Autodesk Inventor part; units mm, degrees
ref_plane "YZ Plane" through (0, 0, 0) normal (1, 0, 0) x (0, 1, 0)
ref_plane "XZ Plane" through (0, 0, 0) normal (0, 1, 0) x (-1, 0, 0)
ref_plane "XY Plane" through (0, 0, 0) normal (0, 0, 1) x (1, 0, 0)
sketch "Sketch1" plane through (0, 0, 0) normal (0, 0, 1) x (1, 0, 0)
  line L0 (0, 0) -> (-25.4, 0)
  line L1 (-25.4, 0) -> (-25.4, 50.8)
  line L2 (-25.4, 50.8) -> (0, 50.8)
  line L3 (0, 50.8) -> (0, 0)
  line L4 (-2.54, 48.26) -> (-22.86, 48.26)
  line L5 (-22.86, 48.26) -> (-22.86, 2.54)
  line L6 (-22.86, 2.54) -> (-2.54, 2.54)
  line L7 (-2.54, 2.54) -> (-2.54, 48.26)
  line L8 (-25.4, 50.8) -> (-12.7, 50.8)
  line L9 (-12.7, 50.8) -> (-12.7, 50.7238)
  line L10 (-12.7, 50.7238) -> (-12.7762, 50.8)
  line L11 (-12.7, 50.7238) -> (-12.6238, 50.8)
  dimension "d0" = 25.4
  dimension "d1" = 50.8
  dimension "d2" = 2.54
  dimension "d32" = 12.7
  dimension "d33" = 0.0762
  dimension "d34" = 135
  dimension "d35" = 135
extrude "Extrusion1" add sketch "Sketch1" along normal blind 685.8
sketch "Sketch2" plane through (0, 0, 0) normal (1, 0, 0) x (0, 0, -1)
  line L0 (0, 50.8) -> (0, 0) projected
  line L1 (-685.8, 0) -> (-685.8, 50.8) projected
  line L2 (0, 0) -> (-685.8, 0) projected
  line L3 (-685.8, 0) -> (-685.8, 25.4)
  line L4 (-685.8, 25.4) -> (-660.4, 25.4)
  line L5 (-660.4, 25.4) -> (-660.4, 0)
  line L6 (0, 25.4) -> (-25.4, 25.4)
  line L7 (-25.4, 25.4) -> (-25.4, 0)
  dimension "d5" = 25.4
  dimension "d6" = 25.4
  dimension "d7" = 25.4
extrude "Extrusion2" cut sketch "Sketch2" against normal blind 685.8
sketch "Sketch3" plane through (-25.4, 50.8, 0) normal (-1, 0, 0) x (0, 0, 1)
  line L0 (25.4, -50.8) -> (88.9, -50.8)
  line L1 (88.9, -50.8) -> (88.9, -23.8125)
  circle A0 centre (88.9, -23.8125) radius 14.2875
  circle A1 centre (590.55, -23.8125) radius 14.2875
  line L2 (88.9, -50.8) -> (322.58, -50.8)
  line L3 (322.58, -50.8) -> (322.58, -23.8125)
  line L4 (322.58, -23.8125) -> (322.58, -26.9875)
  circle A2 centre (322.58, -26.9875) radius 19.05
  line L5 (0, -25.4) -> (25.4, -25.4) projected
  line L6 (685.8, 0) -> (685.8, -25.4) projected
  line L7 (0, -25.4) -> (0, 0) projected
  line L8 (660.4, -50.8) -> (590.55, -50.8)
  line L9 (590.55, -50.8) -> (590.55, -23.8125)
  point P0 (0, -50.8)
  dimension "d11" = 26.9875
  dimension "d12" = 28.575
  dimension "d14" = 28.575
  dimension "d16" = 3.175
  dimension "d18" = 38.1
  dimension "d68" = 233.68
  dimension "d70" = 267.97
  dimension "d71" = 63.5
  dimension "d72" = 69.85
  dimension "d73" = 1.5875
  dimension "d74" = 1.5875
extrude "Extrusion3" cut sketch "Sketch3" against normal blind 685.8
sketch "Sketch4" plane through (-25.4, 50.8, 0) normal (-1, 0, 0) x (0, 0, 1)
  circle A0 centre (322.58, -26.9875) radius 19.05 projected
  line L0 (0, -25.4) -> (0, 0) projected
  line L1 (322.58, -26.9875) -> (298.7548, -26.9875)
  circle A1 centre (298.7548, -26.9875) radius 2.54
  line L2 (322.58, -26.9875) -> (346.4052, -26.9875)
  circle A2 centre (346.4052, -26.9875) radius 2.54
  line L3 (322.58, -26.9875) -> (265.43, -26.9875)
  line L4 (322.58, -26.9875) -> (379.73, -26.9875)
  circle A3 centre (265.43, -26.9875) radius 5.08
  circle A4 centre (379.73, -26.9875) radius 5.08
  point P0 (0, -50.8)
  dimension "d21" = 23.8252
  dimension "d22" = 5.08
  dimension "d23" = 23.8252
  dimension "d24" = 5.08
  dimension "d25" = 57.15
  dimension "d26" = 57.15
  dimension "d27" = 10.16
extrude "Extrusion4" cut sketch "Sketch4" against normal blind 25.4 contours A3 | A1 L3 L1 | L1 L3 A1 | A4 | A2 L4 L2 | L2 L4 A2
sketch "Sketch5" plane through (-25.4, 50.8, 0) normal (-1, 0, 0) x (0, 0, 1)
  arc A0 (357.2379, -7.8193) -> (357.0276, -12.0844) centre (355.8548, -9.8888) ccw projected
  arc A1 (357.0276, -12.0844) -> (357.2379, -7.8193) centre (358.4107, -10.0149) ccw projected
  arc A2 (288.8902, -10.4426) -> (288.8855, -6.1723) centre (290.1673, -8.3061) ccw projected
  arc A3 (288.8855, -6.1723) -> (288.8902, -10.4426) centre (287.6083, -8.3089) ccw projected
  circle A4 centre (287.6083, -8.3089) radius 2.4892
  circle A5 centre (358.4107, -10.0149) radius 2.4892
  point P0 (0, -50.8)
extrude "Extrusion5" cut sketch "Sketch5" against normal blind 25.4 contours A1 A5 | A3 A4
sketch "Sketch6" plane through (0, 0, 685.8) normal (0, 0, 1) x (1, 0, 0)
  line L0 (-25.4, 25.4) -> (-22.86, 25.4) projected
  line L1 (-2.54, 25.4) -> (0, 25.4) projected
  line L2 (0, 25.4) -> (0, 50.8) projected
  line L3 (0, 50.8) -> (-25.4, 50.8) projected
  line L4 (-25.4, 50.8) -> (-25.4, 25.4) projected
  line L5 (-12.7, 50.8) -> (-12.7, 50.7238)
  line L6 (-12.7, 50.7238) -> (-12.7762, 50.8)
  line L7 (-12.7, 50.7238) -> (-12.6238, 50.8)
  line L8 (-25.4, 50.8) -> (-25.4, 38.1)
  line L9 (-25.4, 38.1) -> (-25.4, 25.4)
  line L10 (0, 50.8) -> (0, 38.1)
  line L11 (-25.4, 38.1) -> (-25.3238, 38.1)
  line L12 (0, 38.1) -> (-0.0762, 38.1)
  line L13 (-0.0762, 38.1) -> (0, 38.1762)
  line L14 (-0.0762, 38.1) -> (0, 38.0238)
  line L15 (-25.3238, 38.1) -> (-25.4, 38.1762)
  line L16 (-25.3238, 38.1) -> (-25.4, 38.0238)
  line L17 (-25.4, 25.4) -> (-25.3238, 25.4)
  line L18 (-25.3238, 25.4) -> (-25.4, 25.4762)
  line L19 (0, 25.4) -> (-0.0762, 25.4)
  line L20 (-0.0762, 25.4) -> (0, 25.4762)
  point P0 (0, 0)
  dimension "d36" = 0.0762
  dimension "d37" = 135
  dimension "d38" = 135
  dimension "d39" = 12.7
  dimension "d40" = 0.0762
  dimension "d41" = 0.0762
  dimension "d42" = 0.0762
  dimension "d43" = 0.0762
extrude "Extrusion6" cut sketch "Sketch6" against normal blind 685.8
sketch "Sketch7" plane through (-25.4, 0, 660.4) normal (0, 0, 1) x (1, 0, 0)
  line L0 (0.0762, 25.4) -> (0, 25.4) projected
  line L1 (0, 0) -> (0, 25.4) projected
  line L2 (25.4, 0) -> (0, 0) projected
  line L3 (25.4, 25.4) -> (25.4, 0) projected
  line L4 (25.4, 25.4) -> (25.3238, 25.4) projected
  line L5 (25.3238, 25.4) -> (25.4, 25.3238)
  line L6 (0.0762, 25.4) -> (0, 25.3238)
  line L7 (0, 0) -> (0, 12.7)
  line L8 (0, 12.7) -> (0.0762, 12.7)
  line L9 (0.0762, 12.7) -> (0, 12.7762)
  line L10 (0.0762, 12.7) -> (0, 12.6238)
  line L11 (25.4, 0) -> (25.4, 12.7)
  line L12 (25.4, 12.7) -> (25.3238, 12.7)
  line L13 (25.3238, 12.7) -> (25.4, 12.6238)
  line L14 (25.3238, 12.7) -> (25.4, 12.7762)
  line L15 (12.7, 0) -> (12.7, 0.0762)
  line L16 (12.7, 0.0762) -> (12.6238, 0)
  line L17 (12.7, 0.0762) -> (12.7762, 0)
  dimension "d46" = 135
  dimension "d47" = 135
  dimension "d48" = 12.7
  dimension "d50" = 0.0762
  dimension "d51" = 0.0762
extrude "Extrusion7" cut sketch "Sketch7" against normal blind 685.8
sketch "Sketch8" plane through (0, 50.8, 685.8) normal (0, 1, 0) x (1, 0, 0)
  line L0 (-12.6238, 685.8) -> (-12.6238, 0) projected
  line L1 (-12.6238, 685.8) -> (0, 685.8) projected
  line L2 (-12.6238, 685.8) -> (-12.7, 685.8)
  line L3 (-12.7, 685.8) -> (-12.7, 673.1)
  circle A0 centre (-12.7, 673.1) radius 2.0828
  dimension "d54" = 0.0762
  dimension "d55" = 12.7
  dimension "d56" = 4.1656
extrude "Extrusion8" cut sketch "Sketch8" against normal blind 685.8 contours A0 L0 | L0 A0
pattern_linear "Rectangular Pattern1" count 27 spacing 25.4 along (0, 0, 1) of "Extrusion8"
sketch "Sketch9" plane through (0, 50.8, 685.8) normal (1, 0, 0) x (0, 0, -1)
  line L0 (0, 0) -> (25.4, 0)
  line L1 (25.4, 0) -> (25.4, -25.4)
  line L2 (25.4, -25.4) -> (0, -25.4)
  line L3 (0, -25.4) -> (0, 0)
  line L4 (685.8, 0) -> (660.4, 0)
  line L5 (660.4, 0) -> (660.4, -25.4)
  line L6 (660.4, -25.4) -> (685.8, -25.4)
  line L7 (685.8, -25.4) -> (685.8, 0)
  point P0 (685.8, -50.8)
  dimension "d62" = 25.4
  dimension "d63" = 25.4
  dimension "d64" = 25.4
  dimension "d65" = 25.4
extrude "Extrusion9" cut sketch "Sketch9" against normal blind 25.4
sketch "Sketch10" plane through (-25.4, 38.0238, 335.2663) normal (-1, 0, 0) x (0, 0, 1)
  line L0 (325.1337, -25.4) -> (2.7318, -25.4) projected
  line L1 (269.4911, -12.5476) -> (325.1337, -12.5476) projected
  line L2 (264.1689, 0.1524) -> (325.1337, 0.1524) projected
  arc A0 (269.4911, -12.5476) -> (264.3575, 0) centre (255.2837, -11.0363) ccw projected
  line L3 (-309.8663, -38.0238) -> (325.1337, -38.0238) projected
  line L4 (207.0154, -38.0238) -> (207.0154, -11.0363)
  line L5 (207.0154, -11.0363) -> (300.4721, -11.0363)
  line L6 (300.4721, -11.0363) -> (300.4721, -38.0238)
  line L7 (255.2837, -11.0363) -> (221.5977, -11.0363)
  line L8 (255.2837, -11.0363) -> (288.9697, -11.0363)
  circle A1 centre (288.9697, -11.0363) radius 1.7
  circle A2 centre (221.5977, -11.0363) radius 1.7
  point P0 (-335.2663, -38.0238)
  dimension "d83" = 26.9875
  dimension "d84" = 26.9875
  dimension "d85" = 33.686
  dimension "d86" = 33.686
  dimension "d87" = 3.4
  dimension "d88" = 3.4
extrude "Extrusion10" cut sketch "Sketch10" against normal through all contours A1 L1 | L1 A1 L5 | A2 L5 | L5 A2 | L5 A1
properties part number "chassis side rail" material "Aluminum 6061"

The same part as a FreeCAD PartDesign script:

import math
import FreeCAD as App
import Part
import Sketcher

V = App.Vector
Q = App.Units.Quantity


def add_polygon(sketch, points):
    """Adds a closed chain of lines whose ends are joined by coincident constraints."""
    first, n = sketch.GeometryCount, len(points)
    for a, b in zip(points, points[1:] + points[:1]):
        sketch.addGeometry(Part.LineSegment(App.Vector(*a, 0), App.Vector(*b, 0)), False)
    for i in range(n):
        sketch.addConstraint(Sketcher.Constraint("Coincident", first + i, 2, first + (i + 1) % n, 1))

doc = App.newDocument("Part")
body = doc.addObject("PartDesign::Body", "Body")

sketch1 = body.newObject("Sketcher::SketchObject", "Sketch")
sketch1.AttachmentSupport = (doc.getObject("XY_Plane"), [""])
sketch1.MapMode = "FlatFace"
add_polygon(sketch1, [(-25, 0), (0, 0), (0, 51), (-25, 51)])
add_polygon(sketch1, [(-23, 48), (-3, 48), (-3, 3), (-23, 3)])
sketch1.addConstraint(Sketcher.Constraint("Horizontal", 0))
sketch1.addConstraint(Sketcher.Constraint("Vertical", 1))
sketch1.addConstraint(Sketcher.Constraint("Horizontal", 2))
sketch1.addConstraint(Sketcher.Constraint("Vertical", 3))
sketch1.addConstraint(Sketcher.Constraint("Horizontal", 4))
sketch1.addConstraint(Sketcher.Constraint("Vertical", 5))
sketch1.addConstraint(Sketcher.Constraint("Horizontal", 6))
sketch1.addConstraint(Sketcher.Constraint("Vertical", 7))
sketch1.addConstraint(Sketcher.Constraint("Coincident", 0, 2, -1, 1))
sketch1.addConstraint(Sketcher.Constraint("DistanceX", 0, 1, 0, 2, Q("1 in")))
sketch1.addConstraint(Sketcher.Constraint("DistanceY", 1, 1, 1, 2, Q("2 in")))
sketch1.addConstraint(Sketcher.Constraint("DistanceX", 4, 2, -1, 1, Q("0.1 in")))
sketch1.addConstraint(Sketcher.Constraint("DistanceY", -1, 1, 5, 2, Q("0.1 in")))
sketch1.addConstraint(Sketcher.Constraint("DistanceY", 4, 2, 1, 2, Q("0.1 in")))
sketch1.addConstraint(Sketcher.Constraint("DistanceX", 3, 2, 6, 2, Q("0.1 in")))
pad1 = body.newObject("PartDesign::Pad", "Pad")
pad1.Profile = sketch1
pad1.Length = Q("27 in")

sketch2 = body.newObject("Sketcher::SketchObject", "Sketch001")
sketch2.AttachmentSupport = (doc.getObject("YZ_Plane"), [""])
sketch2.MapMode = "FlatFace"
add_polygon(sketch2, [(0, 686), (0, 660), (25, 660), (25, 686)])
add_polygon(sketch2, [(0, 0), (25, 0), (25, 25), (0, 25)])
sketch2.addConstraint(Sketcher.Constraint("Vertical", 0))
sketch2.addConstraint(Sketcher.Constraint("Horizontal", 1))
sketch2.addConstraint(Sketcher.Constraint("Vertical", 2))
sketch2.addConstraint(Sketcher.Constraint("Horizontal", 3))
sketch2.addConstraint(Sketcher.Constraint("Horizontal", 4))
sketch2.addConstraint(Sketcher.Constraint("Vertical", 5))
sketch2.addConstraint(Sketcher.Constraint("Horizontal", 6))
sketch2.addConstraint(Sketcher.Constraint("Vertical", 7))
sketch2.addConstraint(Sketcher.Constraint("Coincident", 7, 2, -1, 1))
sketch2.addConstraint(Sketcher.Constraint("PointOnObject", 0, 2, -2))
sketch2.addConstraint(Sketcher.Constraint("Vertical", 2, 2, 4, 2))
sketch2.addConstraint(Sketcher.Constraint("Equal", 6, 0))
sketch2.addConstraint(Sketcher.Constraint("Equal", 2, 5))
sketch2.addConstraint(Sketcher.Constraint("DistanceX", 1, 1, 1, 2, Q("1 in")))
sketch2.addConstraint(Sketcher.Constraint("DistanceY", -1, 1, 0, 2, Q("26 in")))
pocket1 = body.newObject("PartDesign::Pocket", "Pocket")
pocket1.Profile = sketch2
pocket1.Length = Q("27 in")

sketch3 = body.newObject("Sketcher::SketchObject", "Sketch002")
sketch3.AttachmentSupport = (doc.getObject("YZ_Plane"), [""])
sketch3.MapMode = "FlatFace"
sketch3.AttachmentOffset = App.Placement(V(0, 0, -1 * 25.4), App.Rotation())
sketch3.addGeometry(Part.Circle(V(27, 89, 0), V(0, 0, 1), 14), False)
sketch3.addGeometry(Part.Circle(V(24, 323, 0), V(0, 0, 1), 19), False)
sketch3.addGeometry(Part.Circle(V(27, 591, 0), V(0, 0, 1), 14), False)
sketch3.addConstraint(Sketcher.Constraint("Equal", 0, 2))
sketch3.addConstraint(Sketcher.Constraint("Vertical", 0, 3, 2, 3))
sketch3.addConstraint(Sketcher.Constraint("Diameter", 1, Q("1.5 in")))
sketch3.addConstraint(Sketcher.Constraint("Diameter", 0, Q("1.125 in")))
sketch3.addConstraint(Sketcher.Constraint("DistanceY", 0, 3, 1, 3, Q("9.2 in")))
sketch3.addConstraint(Sketcher.Constraint("DistanceY", 1, 3, 2, 3, Q("10.55 in")))
sketch3.addConstraint(Sketcher.Constraint("DistanceX", -1, 1, 0, 3, Q("1.0625 in")))
sketch3.addConstraint(Sketcher.Constraint("DistanceX", 1, 3, 0, 3, Q("0.125 in")))
sketch3.addConstraint(Sketcher.Constraint("DistanceY", -1, 1, 0, 3, Q("3.5 in")))
pocket2 = body.newObject("PartDesign::Pocket", "Pocket001")
pocket2.Profile = sketch3
pocket2.Length = Q("27 in")
pocket2.Reversed = True

sketch4 = body.newObject("Sketcher::SketchObject", "Sketch003")
sketch4.AttachmentSupport = (doc.getObject("YZ_Plane"), [""])
sketch4.MapMode = "FlatFace"
sketch4.AttachmentOffset = App.Placement(V(0, 0, -1 * 25.4), App.Rotation())
sketch4.addGeometry(Part.Circle(V(23.8, 265.4, 0), V(0, 0, 1), 5.1), False)
sketch4.addGeometry(Part.Circle(V(23.8, 298.8, 0), V(0, 0, 1), 2.5), False)
sketch4.addGeometry(Part.Circle(V(23.8, 379.7, 0), V(0, 0, 1), 5.1), False)
sketch4.addGeometry(Part.Circle(V(23.8, 346.4, 0), V(0, 0, 1), 2.5), False)
sketch4.addConstraint(Sketcher.Constraint("Equal", 0, 2))
sketch4.addConstraint(Sketcher.Constraint("Equal", 1, 3))
sketch4.addConstraint(Sketcher.Constraint("Vertical", 0, 3, 1, 3))
sketch4.addConstraint(Sketcher.Constraint("Vertical", 1, 3, 2, 3))
sketch4.addConstraint(Sketcher.Constraint("Vertical", 2, 3, 3, 3))
sketch4.addConstraint(Sketcher.Constraint("Diameter", 0, Q("0.4 in")))
sketch4.addConstraint(Sketcher.Constraint("Diameter", 1, Q("0.2 in")))
sketch4.addConstraint(Sketcher.Constraint("DistanceY", 0, 3, 2, 3, Q("4.5 in")))
sketch4.addConstraint(Sketcher.Constraint("DistanceY", -1, 1, 0, 3, Q("10.45 in")))
sketch4.addConstraint(Sketcher.Constraint("DistanceX", -1, 1, 0, 3, Q("0.9375 in")))
sketch4.addConstraint(Sketcher.Constraint("DistanceY", -1, 1, 1, 3, Q("11.762 in")))
sketch4.addConstraint(Sketcher.Constraint("DistanceY", -1, 1, 3, 3, Q("13.638 in")))
pocket3 = body.newObject("PartDesign::Pocket", "Pocket002")
pocket3.Profile = sketch4
pocket3.Length = Q("1 in")
pocket3.Reversed = True

sketch5 = body.newObject("Sketcher::SketchObject", "Sketch004")
sketch5.AttachmentSupport = (doc.getObject("YZ_Plane"), [""])
sketch5.MapMode = "FlatFace"
sketch5.AttachmentOffset = App.Placement(V(0, 0, -1 * 25.4), App.Rotation())
sketch5.addGeometry(Part.ArcOfCircle(Part.Circle(V(40.8, 358.4, 0), V(0, 0, 1), 2.5), math.radians(-28), math.radians(214)), False)
sketch5.addGeometry(Part.ArcOfCircle(Part.Circle(V(40.8, 358.4, 0), V(0, 0, 1), 2.5), math.radians(-146), math.radians(-28)), False)
sketch5.addGeometry(Part.ArcOfCircle(Part.Circle(V(42.5, 287.6, 0), V(0, 0, 1), 2.5), math.radians(149), math.radians(391)), False)
sketch5.addGeometry(Part.ArcOfCircle(Part.Circle(V(42.5, 287.6, 0), V(0, 0, 1), 2.5), math.radians(31), math.radians(149)), False)
sketch5.addConstraint(Sketcher.Constraint("Tangent", 0, 1, 1, 2))
sketch5.addConstraint(Sketcher.Constraint("Coincident", 1, 1, 0, 2))
sketch5.addConstraint(Sketcher.Constraint("Tangent", 2, 1, 3, 2))
sketch5.addConstraint(Sketcher.Constraint("Coincident", 3, 1, 2, 2))
sketch5.addConstraint(Sketcher.Constraint("Equal", 1, 2))
sketch5.addConstraint(Sketcher.Constraint("Radius", 0, Q("0.098 in")))
sketch5.addConstraint(Sketcher.Constraint("DistanceX", -1, 1, 3, 1, Q("1.757 in")))
sketch5.addConstraint(Sketcher.Constraint("DistanceX", 2, 1, 2, 3, Q("0.084 in")))
sketch5.addConstraint(Sketcher.Constraint("DistanceY", -1, 1, 1, 1, Q("14.0562 in")))
sketch5.addConstraint(Sketcher.Constraint("DistanceY", 2, 3, 0, 3, Q("2.7875 in")))
sketch5.addConstraint(Sketcher.Constraint("DistanceX", -1, 1, 0, 3, Q("1.6057087 in")))
sketch5.addConstraint(Sketcher.Constraint("DistanceY", -1, 1, 0, 3, Q("358.4107 mm")))
sketch5.addConstraint(Sketcher.Constraint("DistanceX", -1, 1, 2, 3, Q("42.491 mm")))
sketch5.addConstraint(Sketcher.Constraint("DistanceX", -1, 1, 0, 1, Q("42.9806 mm")))
pocket4 = body.newObject("PartDesign::Pocket", "Pocket003")
pocket4.Profile = sketch5
pocket4.Length = Q("1 in")
pocket4.Reversed = True

sketch6 = body.newObject("Sketcher::SketchObject", "Sketch005")
sketch6.AttachmentSupport = (doc.getObject("XY_Plane"), [""])
sketch6.MapMode = "FlatFace"
sketch6.AttachmentOffset = App.Placement(V(0, 0, 27 * 25.4), App.Rotation())
add_polygon(sketch6, [(-25.4, 25.48), (-25.4, 25.4), (-25.32, 25.4)])
add_polygon(sketch6, [(0, 25.4), (0, 25.48), (-0.08, 25.4)])
add_polygon(sketch6, [(0, 38.18), (-0.08, 38.1), (0, 38.02)])
add_polygon(sketch6, [(-12.78, 50.8), (-12.7, 50.72), (-12.62, 50.8)])
add_polygon(sketch6, [(-25.4, 38.02), (-25.32, 38.1), (-25.4, 38.18)])
sketch6.addConstraint(Sketcher.Constraint("Vertical", 0))
sketch6.addConstraint(Sketcher.Constraint("Horizontal", 1))
sketch6.addConstraint(Sketcher.Constraint("Vertical", 3))
sketch6.addConstraint(Sketcher.Constraint("Horizontal", 5))
sketch6.addConstraint(Sketcher.Constraint("Vertical", 8))
sketch6.addConstraint(Sketcher.Constraint("Horizontal", 11))
sketch6.addConstraint(Sketcher.Constraint("Vertical", 14))
sketch6.addConstraint(Sketcher.Constraint("PointOnObject", 3, 2, -2))
sketch6.addConstraint(Sketcher.Constraint("PointOnObject", 7, 2, -2))
sketch6.addConstraint(Sketcher.Constraint("Perpendicular", 2, 4))
sketch6.addConstraint(Sketcher.Constraint("Parallel", 4, 6))
sketch6.addConstraint(Sketcher.Constraint("Perpendicular", 6, 7))
sketch6.addConstraint(Sketcher.Constraint("Parallel", 7, 9))
sketch6.addConstraint(Sketcher.Constraint("Perpendicular", 9, 10))
sketch6.addConstraint(Sketcher.Constraint("Parallel", 10, 12))
sketch6.addConstraint(Sketcher.Constraint("Perpendicular", 12, 13))
sketch6.addConstraint(Sketcher.Constraint("Horizontal", 2, 2, 3, 2))
sketch6.addConstraint(Sketcher.Constraint("Horizontal", 1, 2, 4, 2))
sketch6.addConstraint(Sketcher.Constraint("Horizontal", 6, 2, 12, 2))
sketch6.addConstraint(Sketcher.Constraint("Horizontal", 8, 2, 13, 2))
sketch6.addConstraint(Sketcher.Constraint("Horizontal", 7, 2, 14, 2))
sketch6.addConstraint(Sketcher.Constraint("Vertical", 4, 2, 6, 2))
sketch6.addConstraint(Sketcher.Constraint("Vertical", 1, 2, 12, 2))
sketch6.addConstraint(Sketcher.Constraint("Equal", 11, 8))
sketch6.addConstraint(Sketcher.Constraint("DistanceX", 9, 2, -1, 1, Q("0.5 in")))
sketch6.addConstraint(Sketcher.Constraint("DistanceY", 4, 2, 6, 2, Q("0.5 in")))
sketch6.addConstraint(Sketcher.Constraint("DistanceY", 7, 2, 9, 2, Q("0.5 in")))
sketch6.addConstraint(Sketcher.Constraint("DistanceX", 2, 2, 9, 2, Q("0.5 in")))
sketch6.addConstraint(Sketcher.Constraint("DistanceX", 1, 1, 1, 2, Q("0.003 in")))
sketch6.addConstraint(Sketcher.Constraint("DistanceY", -1, 1, 0, 2, Q("1 in")))
pocket5 = body.newObject("PartDesign::Pocket", "Pocket004")
pocket5.Profile = sketch6
pocket5.Length = Q("27 in")

sketch7 = body.newObject("Sketcher::SketchObject", "Sketch006")
sketch7.AttachmentSupport = (doc.getObject("XY_Plane"), [""])
sketch7.MapMode = "FlatFace"
sketch7.AttachmentOffset = App.Placement(V(0, 0, 26 * 25.4), App.Rotation())
add_polygon(sketch7, [(-25.4, 25.32), (-25.32, 25.4), (-25.4, 25.4)])
add_polygon(sketch7, [(-0.08, 25.4), (0, 25.32), (0, 25.4)])
add_polygon(sketch7, [(-0.08, 12.7), (0, 12.62), (0, 12.78)])
add_polygon(sketch7, [(-12.7, 0.08), (-12.78, 0), (-12.62, 0)])
add_polygon(sketch7, [(-25.32, 12.7), (-25.4, 12.78), (-25.4, 12.62)])
sketch7.addConstraint(Sketcher.Constraint("Horizontal", 1))
sketch7.addConstraint(Sketcher.Constraint("Vertical", 2))
sketch7.addConstraint(Sketcher.Constraint("Vertical", 4))
sketch7.addConstraint(Sketcher.Constraint("Horizontal", 5))
sketch7.addConstraint(Sketcher.Constraint("Vertical", 7))
sketch7.addConstraint(Sketcher.Constraint("Horizontal", 10))
sketch7.addConstraint(Sketcher.Constraint("Vertical", 13))
sketch7.addConstraint(Sketcher.Constraint("PointOnObject", 3, 2, -2))
sketch7.addConstraint(Sketcher.Constraint("PointOnObject", 6, 2, -2))
sketch7.addConstraint(Sketcher.Constraint("PointOnObject", 9, 2, -1))
sketch7.addConstraint(Sketcher.Constraint("Perpendicular", 0, 3))
sketch7.addConstraint(Sketcher.Constraint("Parallel", 3, 6))
sketch7.addConstraint(Sketcher.Constraint("Perpendicular", 6, 8))
sketch7.addConstraint(Sketcher.Constraint("Parallel", 8, 9))
sketch7.addConstraint(Sketcher.Constraint("Perpendicular", 9, 11))
sketch7.addConstraint(Sketcher.Constraint("Parallel", 11, 12))
sketch7.addConstraint(Sketcher.Constraint("Perpendicular", 12, 14))
sketch7.addConstraint(Sketcher.Constraint("Horizontal", 2, 2, 3, 2))
sketch7.addConstraint(Sketcher.Constraint("Horizontal", 1, 2, 4, 2))
sketch7.addConstraint(Sketcher.Constraint("Horizontal", 7, 2, 12, 2))
sketch7.addConstraint(Sketcher.Constraint("Horizontal", 6, 2, 13, 2))
sketch7.addConstraint(Sketcher.Constraint("Horizontal", 8, 2, 14, 2))
sketch7.addConstraint(Sketcher.Constraint("Vertical", 5, 2, 8, 2))
sketch7.addConstraint(Sketcher.Constraint("Vertical", 2, 2, 12, 2))
sketch7.addConstraint(Sketcher.Constraint("Equal", 10, 7))
sketch7.addConstraint(Sketcher.Constraint("DistanceY", -1, 1, 8, 2, Q("0.5 in")))
sketch7.addConstraint(Sketcher.Constraint("DistanceX", 11, 2, -1, 1, Q("0.5 in")))
sketch7.addConstraint(Sketcher.Constraint("DistanceY", 6, 2, 3, 2, Q("0.5 in")))
sketch7.addConstraint(Sketcher.Constraint("DistanceX", 12, 2, 11, 2, Q("0.5 in")))
sketch7.addConstraint(Sketcher.Constraint("DistanceX", 1, 2, 1, 1, Q("0.003 in")))
pocket6 = body.newObject("PartDesign::Pocket", "Pocket005")
pocket6.Profile = sketch7
pocket6.Length = Q("27 in")

sketch8 = body.newObject("Sketcher::SketchObject", "Sketch007")
sketch8.AttachmentSupport = (doc.getObject("XZ_Plane"), [""])
sketch8.MapMode = "FlatFace"
sketch8.AttachmentOffset = App.Placement(V(0, 0, -2 * 25.4), App.Rotation())
sketch8.addGeometry(Part.Circle(V(-12.7, 12.7, 0), V(0, 0, 1), 2.1), False)
sketch8.addConstraint(Sketcher.Constraint("Diameter", 0, Q("0.164 in")))
sketch8.addConstraint(Sketcher.Constraint("DistanceX", 0, 3, -1, 1, Q("0.5 in")))
sketch8.addConstraint(Sketcher.Constraint("DistanceY", -1, 1, 0, 3, Q("0.5 in")))
pocket7 = body.newObject("PartDesign::Pocket", "Pocket006")
pocket7.Profile = sketch8
pocket7.Length = Q("27 in")
pocket7.Reversed = True
doc.recompute()

linearpattern = body.newObject("PartDesign::LinearPattern", "LinearPattern")
linearpattern.Originals = [pocket7]
linearpattern.Direction = (doc.getObject("Z_Axis"), [""])
linearpattern.Mode = "offset"
linearpattern.Offset = Q("1 in")
linearpattern.Occurrences = 27
body.Tip = linearpattern

sketch9 = body.newObject("Sketcher::SketchObject", "Sketch008")
sketch9.AttachmentSupport = (doc.getObject("YZ_Plane"), [""])
sketch9.MapMode = "FlatFace"
add_polygon(sketch9, [(51, 660), (51, 686), (25, 686), (25, 660)])
add_polygon(sketch9, [(25, 0), (51, 0), (51, 25), (25, 25)])
sketch9.addConstraint(Sketcher.Constraint("Vertical", 0))
sketch9.addConstraint(Sketcher.Constraint("Horizontal", 1))
sketch9.addConstraint(Sketcher.Constraint("Vertical", 2))
sketch9.addConstraint(Sketcher.Constraint("Horizontal", 3))
sketch9.addConstraint(Sketcher.Constraint("Horizontal", 4))
sketch9.addConstraint(Sketcher.Constraint("Vertical", 5))
sketch9.addConstraint(Sketcher.Constraint("Horizontal", 6))
sketch9.addConstraint(Sketcher.Constraint("Vertical", 7))
sketch9.addConstraint(Sketcher.Constraint("PointOnObject", 4, 2, -1))
sketch9.addConstraint(Sketcher.Constraint("Vertical", 3, 2, 4, 2))
sketch9.addConstraint(Sketcher.Constraint("Vertical", 2, 2, 6, 2))
sketch9.addConstraint(Sketcher.Constraint("Equal", 6, 0))
sketch9.addConstraint(Sketcher.Constraint("Equal", 2, 5))
sketch9.addConstraint(Sketcher.Constraint("DistanceX", 1, 2, 1, 1, Q("1 in")))
sketch9.addConstraint(Sketcher.Constraint("DistanceX", -1, 1, 1, 2, Q("1 in")))
sketch9.addConstraint(Sketcher.Constraint("DistanceY", -1, 1, 0, 2, Q("27 in")))
pocket8 = body.newObject("PartDesign::Pocket", "Pocket007")
pocket8.Profile = sketch9
pocket8.Length = Q("1 in")

sketch10 = body.newObject("Sketcher::SketchObject", "Sketch009")
sketch10.AttachmentSupport = (doc.getObject("YZ_Plane"), [""])
sketch10.MapMode = "FlatFace"
sketch10.AttachmentOffset = App.Placement(V(0, 0, -1 * 25.4), App.Rotation())
sketch10.addGeometry(Part.Circle(V(27, 624.2, 0), V(0, 0, 1), 1.7), False)
sketch10.addGeometry(Part.Circle(V(27, 556.9, 0), V(0, 0, 1), 1.7), False)
sketch10.addConstraint(Sketcher.Constraint("Equal", 0, 1))
sketch10.addConstraint(Sketcher.Constraint("Vertical", 0, 3, 1, 3))
sketch10.addConstraint(Sketcher.Constraint("Diameter", 0, Q("3.4 mm")))
sketch10.addConstraint(Sketcher.Constraint("DistanceX", -1, 1, 0, 3, Q("1.0625 in")))
sketch10.addConstraint(Sketcher.Constraint("DistanceY", -1, 1, 0, 3, Q("624.236 mm")))
sketch10.addConstraint(Sketcher.Constraint("DistanceY", -1, 1, 1, 3, Q("556.864 mm")))
pocket9 = body.newObject("PartDesign::Pocket", "Pocket008")
pocket9.Profile = sketch10
pocket9.Type = "ThroughAll"
pocket9.Reversed = True

doc.recompute()
